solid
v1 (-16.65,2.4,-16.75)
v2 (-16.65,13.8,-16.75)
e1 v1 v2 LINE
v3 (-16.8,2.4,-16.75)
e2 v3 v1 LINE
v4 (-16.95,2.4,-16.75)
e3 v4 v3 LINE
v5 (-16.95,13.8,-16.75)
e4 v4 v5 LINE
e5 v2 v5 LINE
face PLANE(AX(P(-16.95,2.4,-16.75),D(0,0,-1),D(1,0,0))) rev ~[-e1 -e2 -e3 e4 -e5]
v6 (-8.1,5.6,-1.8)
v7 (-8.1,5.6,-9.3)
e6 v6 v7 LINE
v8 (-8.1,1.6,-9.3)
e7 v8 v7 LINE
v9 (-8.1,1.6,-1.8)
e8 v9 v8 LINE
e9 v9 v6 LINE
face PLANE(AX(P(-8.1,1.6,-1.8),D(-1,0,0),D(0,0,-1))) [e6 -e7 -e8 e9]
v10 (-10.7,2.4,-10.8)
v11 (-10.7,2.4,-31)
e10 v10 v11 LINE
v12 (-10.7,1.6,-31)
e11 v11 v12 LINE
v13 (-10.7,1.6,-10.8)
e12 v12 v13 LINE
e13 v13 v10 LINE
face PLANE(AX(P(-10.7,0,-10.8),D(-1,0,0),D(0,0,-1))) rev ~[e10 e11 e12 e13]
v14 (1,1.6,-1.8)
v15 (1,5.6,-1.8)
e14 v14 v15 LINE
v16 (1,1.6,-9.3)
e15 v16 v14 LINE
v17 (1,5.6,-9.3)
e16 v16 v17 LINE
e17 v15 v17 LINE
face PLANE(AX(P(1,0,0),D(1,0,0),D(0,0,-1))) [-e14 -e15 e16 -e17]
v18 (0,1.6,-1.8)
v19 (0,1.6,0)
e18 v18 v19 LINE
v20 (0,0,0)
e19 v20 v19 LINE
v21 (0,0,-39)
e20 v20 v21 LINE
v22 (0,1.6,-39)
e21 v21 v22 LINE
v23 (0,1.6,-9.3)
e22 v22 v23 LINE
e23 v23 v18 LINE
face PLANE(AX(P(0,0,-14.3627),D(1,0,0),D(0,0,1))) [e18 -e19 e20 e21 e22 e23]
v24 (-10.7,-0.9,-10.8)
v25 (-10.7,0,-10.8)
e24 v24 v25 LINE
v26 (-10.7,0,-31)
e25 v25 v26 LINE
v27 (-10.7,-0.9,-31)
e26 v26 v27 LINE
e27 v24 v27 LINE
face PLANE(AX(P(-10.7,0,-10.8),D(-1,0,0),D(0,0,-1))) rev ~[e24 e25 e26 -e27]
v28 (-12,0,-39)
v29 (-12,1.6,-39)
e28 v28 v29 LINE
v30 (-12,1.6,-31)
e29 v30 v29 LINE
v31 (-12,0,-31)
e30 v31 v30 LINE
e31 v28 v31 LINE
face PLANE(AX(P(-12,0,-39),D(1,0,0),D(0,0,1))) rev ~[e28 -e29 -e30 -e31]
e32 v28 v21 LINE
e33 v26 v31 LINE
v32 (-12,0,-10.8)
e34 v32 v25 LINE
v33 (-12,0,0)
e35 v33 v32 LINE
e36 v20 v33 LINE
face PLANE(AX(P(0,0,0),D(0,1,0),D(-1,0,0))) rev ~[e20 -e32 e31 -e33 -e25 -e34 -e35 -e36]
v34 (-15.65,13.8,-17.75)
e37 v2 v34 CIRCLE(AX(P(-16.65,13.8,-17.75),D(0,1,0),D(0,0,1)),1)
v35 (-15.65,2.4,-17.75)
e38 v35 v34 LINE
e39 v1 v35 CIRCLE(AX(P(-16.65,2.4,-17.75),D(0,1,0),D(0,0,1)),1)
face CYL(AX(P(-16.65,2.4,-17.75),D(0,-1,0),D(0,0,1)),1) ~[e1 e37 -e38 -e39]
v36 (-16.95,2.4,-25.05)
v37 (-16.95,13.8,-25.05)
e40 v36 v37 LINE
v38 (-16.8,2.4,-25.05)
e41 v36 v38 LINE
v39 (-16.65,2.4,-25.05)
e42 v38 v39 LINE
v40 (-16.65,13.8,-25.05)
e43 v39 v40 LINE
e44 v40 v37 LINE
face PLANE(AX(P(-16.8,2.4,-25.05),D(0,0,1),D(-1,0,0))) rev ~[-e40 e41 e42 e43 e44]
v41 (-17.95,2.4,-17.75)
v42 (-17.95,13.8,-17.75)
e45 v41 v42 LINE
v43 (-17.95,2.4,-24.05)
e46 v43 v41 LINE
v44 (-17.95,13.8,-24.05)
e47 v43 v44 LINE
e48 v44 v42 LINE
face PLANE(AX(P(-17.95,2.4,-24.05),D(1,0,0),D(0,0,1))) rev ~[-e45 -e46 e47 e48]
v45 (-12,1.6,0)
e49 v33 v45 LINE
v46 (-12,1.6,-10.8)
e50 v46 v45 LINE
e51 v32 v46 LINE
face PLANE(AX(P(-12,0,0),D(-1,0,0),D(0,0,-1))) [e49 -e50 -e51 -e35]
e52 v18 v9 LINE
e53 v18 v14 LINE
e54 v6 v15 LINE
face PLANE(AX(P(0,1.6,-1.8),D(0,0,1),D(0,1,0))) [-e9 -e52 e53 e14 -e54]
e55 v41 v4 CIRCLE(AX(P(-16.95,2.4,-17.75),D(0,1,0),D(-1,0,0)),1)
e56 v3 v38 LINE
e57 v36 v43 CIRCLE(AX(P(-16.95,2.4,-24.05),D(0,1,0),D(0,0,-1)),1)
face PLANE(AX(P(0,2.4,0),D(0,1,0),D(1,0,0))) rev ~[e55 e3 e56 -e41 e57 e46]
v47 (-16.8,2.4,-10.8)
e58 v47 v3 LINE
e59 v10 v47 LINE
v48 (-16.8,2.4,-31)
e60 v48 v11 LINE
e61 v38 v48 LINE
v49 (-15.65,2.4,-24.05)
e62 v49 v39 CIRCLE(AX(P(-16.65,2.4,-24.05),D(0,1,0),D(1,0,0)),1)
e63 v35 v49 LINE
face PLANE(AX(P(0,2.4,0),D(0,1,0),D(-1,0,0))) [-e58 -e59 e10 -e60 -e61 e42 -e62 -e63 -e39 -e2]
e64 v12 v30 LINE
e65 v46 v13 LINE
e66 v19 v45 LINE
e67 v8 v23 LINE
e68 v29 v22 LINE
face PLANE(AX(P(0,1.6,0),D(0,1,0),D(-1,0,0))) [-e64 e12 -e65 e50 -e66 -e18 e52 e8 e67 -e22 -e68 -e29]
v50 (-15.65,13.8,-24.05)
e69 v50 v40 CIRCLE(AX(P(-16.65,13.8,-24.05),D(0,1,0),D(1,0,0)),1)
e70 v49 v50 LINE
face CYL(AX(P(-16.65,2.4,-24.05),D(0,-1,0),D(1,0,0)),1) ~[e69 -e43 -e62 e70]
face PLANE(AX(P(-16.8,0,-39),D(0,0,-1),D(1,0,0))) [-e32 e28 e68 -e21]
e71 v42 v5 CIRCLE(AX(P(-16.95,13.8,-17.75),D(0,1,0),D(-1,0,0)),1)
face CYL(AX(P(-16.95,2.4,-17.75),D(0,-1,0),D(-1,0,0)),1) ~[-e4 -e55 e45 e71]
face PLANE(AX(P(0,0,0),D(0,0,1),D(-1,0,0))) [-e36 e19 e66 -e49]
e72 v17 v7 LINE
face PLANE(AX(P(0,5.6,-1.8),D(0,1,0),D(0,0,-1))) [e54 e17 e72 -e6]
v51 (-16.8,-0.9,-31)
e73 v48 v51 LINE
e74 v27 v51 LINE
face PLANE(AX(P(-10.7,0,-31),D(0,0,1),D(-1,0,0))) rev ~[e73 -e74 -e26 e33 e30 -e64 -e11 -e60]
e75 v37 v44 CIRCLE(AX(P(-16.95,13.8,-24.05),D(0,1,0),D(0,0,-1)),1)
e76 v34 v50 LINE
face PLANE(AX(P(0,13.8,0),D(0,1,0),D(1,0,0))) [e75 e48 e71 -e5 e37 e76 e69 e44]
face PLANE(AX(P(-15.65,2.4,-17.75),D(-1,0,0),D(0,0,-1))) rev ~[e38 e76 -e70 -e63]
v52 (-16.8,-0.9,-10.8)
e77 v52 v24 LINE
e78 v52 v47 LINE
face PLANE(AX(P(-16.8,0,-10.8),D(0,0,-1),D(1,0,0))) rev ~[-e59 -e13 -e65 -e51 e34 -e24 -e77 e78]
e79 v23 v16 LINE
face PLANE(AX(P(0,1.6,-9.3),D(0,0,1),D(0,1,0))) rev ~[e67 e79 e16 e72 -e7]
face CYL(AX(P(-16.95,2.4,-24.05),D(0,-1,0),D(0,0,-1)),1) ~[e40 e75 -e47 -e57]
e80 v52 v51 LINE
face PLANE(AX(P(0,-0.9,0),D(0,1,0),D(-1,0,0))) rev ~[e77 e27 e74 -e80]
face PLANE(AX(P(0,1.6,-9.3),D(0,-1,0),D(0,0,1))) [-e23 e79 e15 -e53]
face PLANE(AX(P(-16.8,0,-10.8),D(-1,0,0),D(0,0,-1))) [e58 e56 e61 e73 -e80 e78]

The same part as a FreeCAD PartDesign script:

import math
import FreeCAD as App
import Part
import Sketcher
Q = App.Units.Quantity


def add_polygon(sketch, points):
    """Adds a closed chain of lines whose ends are joined by coincident constraints."""
    first, n = sketch.GeometryCount, len(points)
    for a, b in zip(points, points[1:] + points[:1]):
        sketch.addGeometry(Part.LineSegment(App.Vector(*a, 0), App.Vector(*b, 0)), False)
    for i in range(n):
        sketch.addConstraint(Sketcher.Constraint("Coincident", first + i, 2, first + (i + 1) % n, 1))

doc = App.newDocument("Part")
body = doc.addObject("PartDesign::Body", "Body")

sketch1 = doc.addObject("Sketcher::SketchObject", "Sketch")
body.addObject(sketch1)
sketch1.AttachmentSupport = (doc.XZ_Plane, [""])
sketch1.MapMode = "FlatFace"
add_polygon(sketch1, [(-17, 0), (0, 0), (0, -39), (-17, -39), (-17, -31), (-11, -31), (-11, -11), (-17, -11)])
sketch1.addConstraint(Sketcher.Constraint("Horizontal", 0))
sketch1.addConstraint(Sketcher.Constraint("Vertical", 1))
sketch1.addConstraint(Sketcher.Constraint("Horizontal", 2))
sketch1.addConstraint(Sketcher.Constraint("Vertical", 3))
sketch1.addConstraint(Sketcher.Constraint("Horizontal", 4))
sketch1.addConstraint(Sketcher.Constraint("Vertical", 5))
sketch1.addConstraint(Sketcher.Constraint("Horizontal", 6))
sketch1.addConstraint(Sketcher.Constraint("Vertical", 7))
sketch1.addConstraint(Sketcher.Constraint("Coincident", 0, 2, -1, 1))
sketch1.addConstraint(Sketcher.Constraint("Vertical", 3, 2, 6, 2))
sketch1.addConstraint(Sketcher.Constraint("DistanceY", 1, 2, 1, 1, Q("39 mm")))
sketch1.addConstraint(Sketcher.Constraint("DistanceY", 3, 1, 3, 2, Q("8 mm")))
sketch1.addConstraint(Sketcher.Constraint("DistanceX", 0, 1, 0, 2, Q("16.8 mm")))
sketch1.addConstraint(Sketcher.Constraint("DistanceX", 4, 1, 4, 2, Q("6.1 mm")))
sketch1.addConstraint(Sketcher.Constraint("DistanceY", 5, 1, 5, 2, Q("20.2 mm")))
pad1 = doc.addObject("PartDesign::Pad", "Pad")
body.addObject(pad1)
pad1.Profile = sketch1
pad1.Length = 1.6
pad1.Reversed = True

sketch2 = doc.addObject("Sketcher::SketchObject", "Sketch001")
body.addObject(sketch2)
sketch2.AttachmentSupport = (doc.XZ_Plane, [""])
sketch2.MapMode = "FlatFace"
add_polygon(sketch2, [(-17, -31), (-17, -11), (-11, -11), (-11, -31)])
sketch2.addConstraint(Sketcher.Constraint("Vertical", 0))
sketch2.addConstraint(Sketcher.Constraint("Horizontal", 1))
sketch2.addConstraint(Sketcher.Constraint("Vertical", 2))
sketch2.addConstraint(Sketcher.Constraint("Horizontal", 3))
sketch2.addConstraint(Sketcher.Constraint("DistanceX", 1, 1, 1, 2, Q("6.1 mm")))
sketch2.addConstraint(Sketcher.Constraint("DistanceY", 0, 1, 0, 2, Q("20.2 mm")))
sketch2.addConstraint(Sketcher.Constraint("DistanceX", 0, 2, -1, 1, Q("16.8 mm")))
sketch2.addConstraint(Sketcher.Constraint("DistanceY", 2, 2, -1, 1, Q("31 mm")))
pad2 = doc.addObject("PartDesign::Pad", "Pad001")
body.addObject(pad2)
pad2.Profile = sketch2
pad2.Type = "TwoLengths"
pad2.Length = 2.4
pad2.Length2 = 0.9
pad2.Reversed = True

sketch3 = doc.addObject("Sketcher::SketchObject", "Sketch002")
body.addObject(sketch3)
sketch3.AttachmentSupport = (doc.XZ_Plane, [""])
sketch3.MapMode = "FlatFace"
sketch3.AttachmentOffset = App.Placement(App.Vector(0, 0, -2.4), App.Rotation())
sketch3.addGeometry(Part.ArcOfCircle(Part.Circle(App.Vector(-16.95, -17.75, 0), App.Vector(0, 0, 1), 1), math.radians(90), math.radians(180)), False)
sketch3.addGeometry(Part.LineSegment(App.Vector(-16.95, -16.75, 0), App.Vector(-16.65, -16.75, 0)), False)
sketch3.addGeometry(Part.ArcOfCircle(Part.Circle(App.Vector(-16.65, -17.75, 0), App.Vector(0, 0, 1), 1), math.radians(0), math.radians(90)), False)
sketch3.addGeometry(Part.LineSegment(App.Vector(-15.65, -17.75, 0), App.Vector(-15.65, -24.05, 0)), False)
sketch3.addGeometry(Part.ArcOfCircle(Part.Circle(App.Vector(-16.65, -24.05, 0), App.Vector(0, 0, 1), 1), math.radians(-90), math.radians(0)), False)
sketch3.addGeometry(Part.LineSegment(App.Vector(-16.65, -25.05, 0), App.Vector(-16.95, -25.05, 0)), False)
sketch3.addGeometry(Part.ArcOfCircle(Part.Circle(App.Vector(-16.95, -24.05, 0), App.Vector(0, 0, 1), 1), math.radians(180), math.radians(270)), False)
sketch3.addGeometry(Part.LineSegment(App.Vector(-17.95, -24.05, 0), App.Vector(-17.95, -17.75, 0)), False)
sketch3.addConstraint(Sketcher.Constraint("Tangent", 0, 1, 1, 1))
sketch3.addConstraint(Sketcher.Constraint("Tangent", 1, 2, 2, 2))
sketch3.addConstraint(Sketcher.Constraint("Tangent", 2, 1, 3, 1))
sketch3.addConstraint(Sketcher.Constraint("Tangent", 3, 2, 4, 2))
sketch3.addConstraint(Sketcher.Constraint("Tangent", 4, 1, 5, 1))
sketch3.addConstraint(Sketcher.Constraint("Tangent", 5, 2, 6, 2))
sketch3.addConstraint(Sketcher.Constraint("Tangent", 6, 1, 7, 1))
sketch3.addConstraint(Sketcher.Constraint("Tangent", 7, 2, 0, 2))
sketch3.addConstraint(Sketcher.Constraint("Horizontal", 1))
sketch3.addConstraint(Sketcher.Constraint("Vertical", 3))
sketch3.addConstraint(Sketcher.Constraint("Horizontal", 5))
sketch3.addConstraint(Sketcher.Constraint("Vertical", 7))
sketch3.addConstraint(Sketcher.Constraint("Equal", 0, 2))
sketch3.addConstraint(Sketcher.Constraint("Equal", 2, 4))
sketch3.addConstraint(Sketcher.Constraint("Equal", 4, 6))
sketch3.addConstraint(Sketcher.Constraint("Radius", 0, Q("1 mm")))
sketch3.addConstraint(Sketcher.Constraint("DistanceX", 6, 1, 3, 2, Q("2.3 mm")))
sketch3.addConstraint(Sketcher.Constraint("DistanceY", 3, 2, 3, 1, Q("6.3 mm")))
sketch3.addConstraint(Sketcher.Constraint("DistanceX", 0, 3, -1, 1, Q("16.95 mm")))
sketch3.addConstraint(Sketcher.Constraint("DistanceY", 0, 3, -1, 1, Q("17.75 mm")))
pad3 = doc.addObject("PartDesign::Pad", "Pad002")
body.addObject(pad3)
pad3.Profile = sketch3
pad3.Length = 11.4
pad3.Reversed = True

sketch4 = doc.addObject("Sketcher::SketchObject", "Sketch003")
body.addObject(sketch4)
sketch4.AttachmentSupport = (doc.XZ_Plane, [""])
sketch4.MapMode = "FlatFace"
add_polygon(sketch4, [(-12, -10.8), (-12, 0), (-16.8, 0), (-16.8, -10.8)])
add_polygon(sketch4, [(-16.8, -39), (-12, -39), (-12, -31), (-16.8, -31)])
sketch4.addConstraint(Sketcher.Constraint("Vertical", 0))
sketch4.addConstraint(Sketcher.Constraint("Horizontal", 1))
sketch4.addConstraint(Sketcher.Constraint("Vertical", 2))
sketch4.addConstraint(Sketcher.Constraint("Horizontal", 3))
sketch4.addConstraint(Sketcher.Constraint("Horizontal", 4))
sketch4.addConstraint(Sketcher.Constraint("Vertical", 5))
sketch4.addConstraint(Sketcher.Constraint("Horizontal", 6))
sketch4.addConstraint(Sketcher.Constraint("Vertical", 7))
sketch4.addConstraint(Sketcher.Constraint("PointOnObject", 0, 2, -1))
sketch4.addConstraint(Sketcher.Constraint("Vertical", 3, 2, 4, 2))
sketch4.addConstraint(Sketcher.Constraint("Vertical", 2, 2, 6, 2))
sketch4.addConstraint(Sketcher.Constraint("DistanceY", 0, 1, 0, 2, Q("10.8 mm")))
sketch4.addConstraint(Sketcher.Constraint("DistanceX", 0, 2, -1, 1, Q("12 mm")))
sketch4.addConstraint(Sketcher.Constraint("DistanceY", 5, 1, 5, 2, Q("8 mm")))
sketch4.addConstraint(Sketcher.Constraint("DistanceX", 1, 2, 1, 1, Q("4.8 mm")))
sketch4.addConstraint(Sketcher.Constraint("DistanceY", 4, 2, -1, 1, Q("39 mm")))
pocket1 = doc.addObject("PartDesign::Pocket", "Pocket")
body.addObject(pocket1)
pocket1.Profile = sketch4
pocket1.Length = 10.1

sketch5 = doc.addObject("Sketcher::SketchObject", "Sketch004")
body.addObject(sketch5)
sketch5.AttachmentSupport = (doc.XZ_Plane, [""])
sketch5.MapMode = "FlatFace"
sketch5.AttachmentOffset = App.Placement(App.Vector(0, 0, -1.6), App.Rotation())
add_polygon(sketch5, [(-8, -2), (0, -2), (0, -9), (-8, -9)])
sketch5.addConstraint(Sketcher.Constraint("Horizontal", 0))
sketch5.addConstraint(Sketcher.Constraint("Vertical", 1))
sketch5.addConstraint(Sketcher.Constraint("Horizontal", 2))
sketch5.addConstraint(Sketcher.Constraint("Vertical", 3))
sketch5.addConstraint(Sketcher.Constraint("PointOnObject", 0, 2, -2))
sketch5.addConstraint(Sketcher.Constraint("DistanceX", 0, 1, 0, 2, Q("8.1 mm")))
sketch5.addConstraint(Sketcher.Constraint("DistanceY", 1, 2, 1, 1, Q("7.5 mm")))
sketch5.addConstraint(Sketcher.Constraint("DistanceY", 0, 2, -1, 1, Q("1.8 mm")))
pad4 = doc.addObject("PartDesign::Pad", "Pad003")
body.addObject(pad4)
pad4.Profile = sketch5
pad4.Length = 4
pad4.Reversed = True

sketch6 = doc.addObject("Sketcher::SketchObject", "Sketch005")
body.addObject(sketch6)
sketch6.AttachmentSupport = (doc.YZ_Plane, [""])
sketch6.MapMode = "FlatFace"
add_polygon(sketch6, [(5.6, -9.3), (5.6, -1.8), (1.6, -1.8), (1.6, -9.3)])
sketch6.addConstraint(Sketcher.Constraint("Vertical", 0))
sketch6.addConstraint(Sketcher.Constraint("Horizontal", 1))
sketch6.addConstraint(Sketcher.Constraint("Vertical", 2))
sketch6.addConstraint(Sketcher.Constraint("Horizontal", 3))
sketch6.addConstraint(Sketcher.Constraint("DistanceX", 1, 2, 1, 1, Q("4 mm")))
sketch6.addConstraint(Sketcher.Constraint("DistanceY", 0, 1, 0, 2, Q("7.5 mm")))
sketch6.addConstraint(Sketcher.Constraint("DistanceX", -1, 1, 0, 2, Q("5.6 mm")))
sketch6.addConstraint(Sketcher.Constraint("DistanceY", 0, 2, -1, 1, Q("1.8 mm")))
pad5 = doc.addObject("PartDesign::Pad", "Pad004")
body.addObject(pad5)
pad5.Profile = sketch6
pad5.Length = 1

doc.recompute()
